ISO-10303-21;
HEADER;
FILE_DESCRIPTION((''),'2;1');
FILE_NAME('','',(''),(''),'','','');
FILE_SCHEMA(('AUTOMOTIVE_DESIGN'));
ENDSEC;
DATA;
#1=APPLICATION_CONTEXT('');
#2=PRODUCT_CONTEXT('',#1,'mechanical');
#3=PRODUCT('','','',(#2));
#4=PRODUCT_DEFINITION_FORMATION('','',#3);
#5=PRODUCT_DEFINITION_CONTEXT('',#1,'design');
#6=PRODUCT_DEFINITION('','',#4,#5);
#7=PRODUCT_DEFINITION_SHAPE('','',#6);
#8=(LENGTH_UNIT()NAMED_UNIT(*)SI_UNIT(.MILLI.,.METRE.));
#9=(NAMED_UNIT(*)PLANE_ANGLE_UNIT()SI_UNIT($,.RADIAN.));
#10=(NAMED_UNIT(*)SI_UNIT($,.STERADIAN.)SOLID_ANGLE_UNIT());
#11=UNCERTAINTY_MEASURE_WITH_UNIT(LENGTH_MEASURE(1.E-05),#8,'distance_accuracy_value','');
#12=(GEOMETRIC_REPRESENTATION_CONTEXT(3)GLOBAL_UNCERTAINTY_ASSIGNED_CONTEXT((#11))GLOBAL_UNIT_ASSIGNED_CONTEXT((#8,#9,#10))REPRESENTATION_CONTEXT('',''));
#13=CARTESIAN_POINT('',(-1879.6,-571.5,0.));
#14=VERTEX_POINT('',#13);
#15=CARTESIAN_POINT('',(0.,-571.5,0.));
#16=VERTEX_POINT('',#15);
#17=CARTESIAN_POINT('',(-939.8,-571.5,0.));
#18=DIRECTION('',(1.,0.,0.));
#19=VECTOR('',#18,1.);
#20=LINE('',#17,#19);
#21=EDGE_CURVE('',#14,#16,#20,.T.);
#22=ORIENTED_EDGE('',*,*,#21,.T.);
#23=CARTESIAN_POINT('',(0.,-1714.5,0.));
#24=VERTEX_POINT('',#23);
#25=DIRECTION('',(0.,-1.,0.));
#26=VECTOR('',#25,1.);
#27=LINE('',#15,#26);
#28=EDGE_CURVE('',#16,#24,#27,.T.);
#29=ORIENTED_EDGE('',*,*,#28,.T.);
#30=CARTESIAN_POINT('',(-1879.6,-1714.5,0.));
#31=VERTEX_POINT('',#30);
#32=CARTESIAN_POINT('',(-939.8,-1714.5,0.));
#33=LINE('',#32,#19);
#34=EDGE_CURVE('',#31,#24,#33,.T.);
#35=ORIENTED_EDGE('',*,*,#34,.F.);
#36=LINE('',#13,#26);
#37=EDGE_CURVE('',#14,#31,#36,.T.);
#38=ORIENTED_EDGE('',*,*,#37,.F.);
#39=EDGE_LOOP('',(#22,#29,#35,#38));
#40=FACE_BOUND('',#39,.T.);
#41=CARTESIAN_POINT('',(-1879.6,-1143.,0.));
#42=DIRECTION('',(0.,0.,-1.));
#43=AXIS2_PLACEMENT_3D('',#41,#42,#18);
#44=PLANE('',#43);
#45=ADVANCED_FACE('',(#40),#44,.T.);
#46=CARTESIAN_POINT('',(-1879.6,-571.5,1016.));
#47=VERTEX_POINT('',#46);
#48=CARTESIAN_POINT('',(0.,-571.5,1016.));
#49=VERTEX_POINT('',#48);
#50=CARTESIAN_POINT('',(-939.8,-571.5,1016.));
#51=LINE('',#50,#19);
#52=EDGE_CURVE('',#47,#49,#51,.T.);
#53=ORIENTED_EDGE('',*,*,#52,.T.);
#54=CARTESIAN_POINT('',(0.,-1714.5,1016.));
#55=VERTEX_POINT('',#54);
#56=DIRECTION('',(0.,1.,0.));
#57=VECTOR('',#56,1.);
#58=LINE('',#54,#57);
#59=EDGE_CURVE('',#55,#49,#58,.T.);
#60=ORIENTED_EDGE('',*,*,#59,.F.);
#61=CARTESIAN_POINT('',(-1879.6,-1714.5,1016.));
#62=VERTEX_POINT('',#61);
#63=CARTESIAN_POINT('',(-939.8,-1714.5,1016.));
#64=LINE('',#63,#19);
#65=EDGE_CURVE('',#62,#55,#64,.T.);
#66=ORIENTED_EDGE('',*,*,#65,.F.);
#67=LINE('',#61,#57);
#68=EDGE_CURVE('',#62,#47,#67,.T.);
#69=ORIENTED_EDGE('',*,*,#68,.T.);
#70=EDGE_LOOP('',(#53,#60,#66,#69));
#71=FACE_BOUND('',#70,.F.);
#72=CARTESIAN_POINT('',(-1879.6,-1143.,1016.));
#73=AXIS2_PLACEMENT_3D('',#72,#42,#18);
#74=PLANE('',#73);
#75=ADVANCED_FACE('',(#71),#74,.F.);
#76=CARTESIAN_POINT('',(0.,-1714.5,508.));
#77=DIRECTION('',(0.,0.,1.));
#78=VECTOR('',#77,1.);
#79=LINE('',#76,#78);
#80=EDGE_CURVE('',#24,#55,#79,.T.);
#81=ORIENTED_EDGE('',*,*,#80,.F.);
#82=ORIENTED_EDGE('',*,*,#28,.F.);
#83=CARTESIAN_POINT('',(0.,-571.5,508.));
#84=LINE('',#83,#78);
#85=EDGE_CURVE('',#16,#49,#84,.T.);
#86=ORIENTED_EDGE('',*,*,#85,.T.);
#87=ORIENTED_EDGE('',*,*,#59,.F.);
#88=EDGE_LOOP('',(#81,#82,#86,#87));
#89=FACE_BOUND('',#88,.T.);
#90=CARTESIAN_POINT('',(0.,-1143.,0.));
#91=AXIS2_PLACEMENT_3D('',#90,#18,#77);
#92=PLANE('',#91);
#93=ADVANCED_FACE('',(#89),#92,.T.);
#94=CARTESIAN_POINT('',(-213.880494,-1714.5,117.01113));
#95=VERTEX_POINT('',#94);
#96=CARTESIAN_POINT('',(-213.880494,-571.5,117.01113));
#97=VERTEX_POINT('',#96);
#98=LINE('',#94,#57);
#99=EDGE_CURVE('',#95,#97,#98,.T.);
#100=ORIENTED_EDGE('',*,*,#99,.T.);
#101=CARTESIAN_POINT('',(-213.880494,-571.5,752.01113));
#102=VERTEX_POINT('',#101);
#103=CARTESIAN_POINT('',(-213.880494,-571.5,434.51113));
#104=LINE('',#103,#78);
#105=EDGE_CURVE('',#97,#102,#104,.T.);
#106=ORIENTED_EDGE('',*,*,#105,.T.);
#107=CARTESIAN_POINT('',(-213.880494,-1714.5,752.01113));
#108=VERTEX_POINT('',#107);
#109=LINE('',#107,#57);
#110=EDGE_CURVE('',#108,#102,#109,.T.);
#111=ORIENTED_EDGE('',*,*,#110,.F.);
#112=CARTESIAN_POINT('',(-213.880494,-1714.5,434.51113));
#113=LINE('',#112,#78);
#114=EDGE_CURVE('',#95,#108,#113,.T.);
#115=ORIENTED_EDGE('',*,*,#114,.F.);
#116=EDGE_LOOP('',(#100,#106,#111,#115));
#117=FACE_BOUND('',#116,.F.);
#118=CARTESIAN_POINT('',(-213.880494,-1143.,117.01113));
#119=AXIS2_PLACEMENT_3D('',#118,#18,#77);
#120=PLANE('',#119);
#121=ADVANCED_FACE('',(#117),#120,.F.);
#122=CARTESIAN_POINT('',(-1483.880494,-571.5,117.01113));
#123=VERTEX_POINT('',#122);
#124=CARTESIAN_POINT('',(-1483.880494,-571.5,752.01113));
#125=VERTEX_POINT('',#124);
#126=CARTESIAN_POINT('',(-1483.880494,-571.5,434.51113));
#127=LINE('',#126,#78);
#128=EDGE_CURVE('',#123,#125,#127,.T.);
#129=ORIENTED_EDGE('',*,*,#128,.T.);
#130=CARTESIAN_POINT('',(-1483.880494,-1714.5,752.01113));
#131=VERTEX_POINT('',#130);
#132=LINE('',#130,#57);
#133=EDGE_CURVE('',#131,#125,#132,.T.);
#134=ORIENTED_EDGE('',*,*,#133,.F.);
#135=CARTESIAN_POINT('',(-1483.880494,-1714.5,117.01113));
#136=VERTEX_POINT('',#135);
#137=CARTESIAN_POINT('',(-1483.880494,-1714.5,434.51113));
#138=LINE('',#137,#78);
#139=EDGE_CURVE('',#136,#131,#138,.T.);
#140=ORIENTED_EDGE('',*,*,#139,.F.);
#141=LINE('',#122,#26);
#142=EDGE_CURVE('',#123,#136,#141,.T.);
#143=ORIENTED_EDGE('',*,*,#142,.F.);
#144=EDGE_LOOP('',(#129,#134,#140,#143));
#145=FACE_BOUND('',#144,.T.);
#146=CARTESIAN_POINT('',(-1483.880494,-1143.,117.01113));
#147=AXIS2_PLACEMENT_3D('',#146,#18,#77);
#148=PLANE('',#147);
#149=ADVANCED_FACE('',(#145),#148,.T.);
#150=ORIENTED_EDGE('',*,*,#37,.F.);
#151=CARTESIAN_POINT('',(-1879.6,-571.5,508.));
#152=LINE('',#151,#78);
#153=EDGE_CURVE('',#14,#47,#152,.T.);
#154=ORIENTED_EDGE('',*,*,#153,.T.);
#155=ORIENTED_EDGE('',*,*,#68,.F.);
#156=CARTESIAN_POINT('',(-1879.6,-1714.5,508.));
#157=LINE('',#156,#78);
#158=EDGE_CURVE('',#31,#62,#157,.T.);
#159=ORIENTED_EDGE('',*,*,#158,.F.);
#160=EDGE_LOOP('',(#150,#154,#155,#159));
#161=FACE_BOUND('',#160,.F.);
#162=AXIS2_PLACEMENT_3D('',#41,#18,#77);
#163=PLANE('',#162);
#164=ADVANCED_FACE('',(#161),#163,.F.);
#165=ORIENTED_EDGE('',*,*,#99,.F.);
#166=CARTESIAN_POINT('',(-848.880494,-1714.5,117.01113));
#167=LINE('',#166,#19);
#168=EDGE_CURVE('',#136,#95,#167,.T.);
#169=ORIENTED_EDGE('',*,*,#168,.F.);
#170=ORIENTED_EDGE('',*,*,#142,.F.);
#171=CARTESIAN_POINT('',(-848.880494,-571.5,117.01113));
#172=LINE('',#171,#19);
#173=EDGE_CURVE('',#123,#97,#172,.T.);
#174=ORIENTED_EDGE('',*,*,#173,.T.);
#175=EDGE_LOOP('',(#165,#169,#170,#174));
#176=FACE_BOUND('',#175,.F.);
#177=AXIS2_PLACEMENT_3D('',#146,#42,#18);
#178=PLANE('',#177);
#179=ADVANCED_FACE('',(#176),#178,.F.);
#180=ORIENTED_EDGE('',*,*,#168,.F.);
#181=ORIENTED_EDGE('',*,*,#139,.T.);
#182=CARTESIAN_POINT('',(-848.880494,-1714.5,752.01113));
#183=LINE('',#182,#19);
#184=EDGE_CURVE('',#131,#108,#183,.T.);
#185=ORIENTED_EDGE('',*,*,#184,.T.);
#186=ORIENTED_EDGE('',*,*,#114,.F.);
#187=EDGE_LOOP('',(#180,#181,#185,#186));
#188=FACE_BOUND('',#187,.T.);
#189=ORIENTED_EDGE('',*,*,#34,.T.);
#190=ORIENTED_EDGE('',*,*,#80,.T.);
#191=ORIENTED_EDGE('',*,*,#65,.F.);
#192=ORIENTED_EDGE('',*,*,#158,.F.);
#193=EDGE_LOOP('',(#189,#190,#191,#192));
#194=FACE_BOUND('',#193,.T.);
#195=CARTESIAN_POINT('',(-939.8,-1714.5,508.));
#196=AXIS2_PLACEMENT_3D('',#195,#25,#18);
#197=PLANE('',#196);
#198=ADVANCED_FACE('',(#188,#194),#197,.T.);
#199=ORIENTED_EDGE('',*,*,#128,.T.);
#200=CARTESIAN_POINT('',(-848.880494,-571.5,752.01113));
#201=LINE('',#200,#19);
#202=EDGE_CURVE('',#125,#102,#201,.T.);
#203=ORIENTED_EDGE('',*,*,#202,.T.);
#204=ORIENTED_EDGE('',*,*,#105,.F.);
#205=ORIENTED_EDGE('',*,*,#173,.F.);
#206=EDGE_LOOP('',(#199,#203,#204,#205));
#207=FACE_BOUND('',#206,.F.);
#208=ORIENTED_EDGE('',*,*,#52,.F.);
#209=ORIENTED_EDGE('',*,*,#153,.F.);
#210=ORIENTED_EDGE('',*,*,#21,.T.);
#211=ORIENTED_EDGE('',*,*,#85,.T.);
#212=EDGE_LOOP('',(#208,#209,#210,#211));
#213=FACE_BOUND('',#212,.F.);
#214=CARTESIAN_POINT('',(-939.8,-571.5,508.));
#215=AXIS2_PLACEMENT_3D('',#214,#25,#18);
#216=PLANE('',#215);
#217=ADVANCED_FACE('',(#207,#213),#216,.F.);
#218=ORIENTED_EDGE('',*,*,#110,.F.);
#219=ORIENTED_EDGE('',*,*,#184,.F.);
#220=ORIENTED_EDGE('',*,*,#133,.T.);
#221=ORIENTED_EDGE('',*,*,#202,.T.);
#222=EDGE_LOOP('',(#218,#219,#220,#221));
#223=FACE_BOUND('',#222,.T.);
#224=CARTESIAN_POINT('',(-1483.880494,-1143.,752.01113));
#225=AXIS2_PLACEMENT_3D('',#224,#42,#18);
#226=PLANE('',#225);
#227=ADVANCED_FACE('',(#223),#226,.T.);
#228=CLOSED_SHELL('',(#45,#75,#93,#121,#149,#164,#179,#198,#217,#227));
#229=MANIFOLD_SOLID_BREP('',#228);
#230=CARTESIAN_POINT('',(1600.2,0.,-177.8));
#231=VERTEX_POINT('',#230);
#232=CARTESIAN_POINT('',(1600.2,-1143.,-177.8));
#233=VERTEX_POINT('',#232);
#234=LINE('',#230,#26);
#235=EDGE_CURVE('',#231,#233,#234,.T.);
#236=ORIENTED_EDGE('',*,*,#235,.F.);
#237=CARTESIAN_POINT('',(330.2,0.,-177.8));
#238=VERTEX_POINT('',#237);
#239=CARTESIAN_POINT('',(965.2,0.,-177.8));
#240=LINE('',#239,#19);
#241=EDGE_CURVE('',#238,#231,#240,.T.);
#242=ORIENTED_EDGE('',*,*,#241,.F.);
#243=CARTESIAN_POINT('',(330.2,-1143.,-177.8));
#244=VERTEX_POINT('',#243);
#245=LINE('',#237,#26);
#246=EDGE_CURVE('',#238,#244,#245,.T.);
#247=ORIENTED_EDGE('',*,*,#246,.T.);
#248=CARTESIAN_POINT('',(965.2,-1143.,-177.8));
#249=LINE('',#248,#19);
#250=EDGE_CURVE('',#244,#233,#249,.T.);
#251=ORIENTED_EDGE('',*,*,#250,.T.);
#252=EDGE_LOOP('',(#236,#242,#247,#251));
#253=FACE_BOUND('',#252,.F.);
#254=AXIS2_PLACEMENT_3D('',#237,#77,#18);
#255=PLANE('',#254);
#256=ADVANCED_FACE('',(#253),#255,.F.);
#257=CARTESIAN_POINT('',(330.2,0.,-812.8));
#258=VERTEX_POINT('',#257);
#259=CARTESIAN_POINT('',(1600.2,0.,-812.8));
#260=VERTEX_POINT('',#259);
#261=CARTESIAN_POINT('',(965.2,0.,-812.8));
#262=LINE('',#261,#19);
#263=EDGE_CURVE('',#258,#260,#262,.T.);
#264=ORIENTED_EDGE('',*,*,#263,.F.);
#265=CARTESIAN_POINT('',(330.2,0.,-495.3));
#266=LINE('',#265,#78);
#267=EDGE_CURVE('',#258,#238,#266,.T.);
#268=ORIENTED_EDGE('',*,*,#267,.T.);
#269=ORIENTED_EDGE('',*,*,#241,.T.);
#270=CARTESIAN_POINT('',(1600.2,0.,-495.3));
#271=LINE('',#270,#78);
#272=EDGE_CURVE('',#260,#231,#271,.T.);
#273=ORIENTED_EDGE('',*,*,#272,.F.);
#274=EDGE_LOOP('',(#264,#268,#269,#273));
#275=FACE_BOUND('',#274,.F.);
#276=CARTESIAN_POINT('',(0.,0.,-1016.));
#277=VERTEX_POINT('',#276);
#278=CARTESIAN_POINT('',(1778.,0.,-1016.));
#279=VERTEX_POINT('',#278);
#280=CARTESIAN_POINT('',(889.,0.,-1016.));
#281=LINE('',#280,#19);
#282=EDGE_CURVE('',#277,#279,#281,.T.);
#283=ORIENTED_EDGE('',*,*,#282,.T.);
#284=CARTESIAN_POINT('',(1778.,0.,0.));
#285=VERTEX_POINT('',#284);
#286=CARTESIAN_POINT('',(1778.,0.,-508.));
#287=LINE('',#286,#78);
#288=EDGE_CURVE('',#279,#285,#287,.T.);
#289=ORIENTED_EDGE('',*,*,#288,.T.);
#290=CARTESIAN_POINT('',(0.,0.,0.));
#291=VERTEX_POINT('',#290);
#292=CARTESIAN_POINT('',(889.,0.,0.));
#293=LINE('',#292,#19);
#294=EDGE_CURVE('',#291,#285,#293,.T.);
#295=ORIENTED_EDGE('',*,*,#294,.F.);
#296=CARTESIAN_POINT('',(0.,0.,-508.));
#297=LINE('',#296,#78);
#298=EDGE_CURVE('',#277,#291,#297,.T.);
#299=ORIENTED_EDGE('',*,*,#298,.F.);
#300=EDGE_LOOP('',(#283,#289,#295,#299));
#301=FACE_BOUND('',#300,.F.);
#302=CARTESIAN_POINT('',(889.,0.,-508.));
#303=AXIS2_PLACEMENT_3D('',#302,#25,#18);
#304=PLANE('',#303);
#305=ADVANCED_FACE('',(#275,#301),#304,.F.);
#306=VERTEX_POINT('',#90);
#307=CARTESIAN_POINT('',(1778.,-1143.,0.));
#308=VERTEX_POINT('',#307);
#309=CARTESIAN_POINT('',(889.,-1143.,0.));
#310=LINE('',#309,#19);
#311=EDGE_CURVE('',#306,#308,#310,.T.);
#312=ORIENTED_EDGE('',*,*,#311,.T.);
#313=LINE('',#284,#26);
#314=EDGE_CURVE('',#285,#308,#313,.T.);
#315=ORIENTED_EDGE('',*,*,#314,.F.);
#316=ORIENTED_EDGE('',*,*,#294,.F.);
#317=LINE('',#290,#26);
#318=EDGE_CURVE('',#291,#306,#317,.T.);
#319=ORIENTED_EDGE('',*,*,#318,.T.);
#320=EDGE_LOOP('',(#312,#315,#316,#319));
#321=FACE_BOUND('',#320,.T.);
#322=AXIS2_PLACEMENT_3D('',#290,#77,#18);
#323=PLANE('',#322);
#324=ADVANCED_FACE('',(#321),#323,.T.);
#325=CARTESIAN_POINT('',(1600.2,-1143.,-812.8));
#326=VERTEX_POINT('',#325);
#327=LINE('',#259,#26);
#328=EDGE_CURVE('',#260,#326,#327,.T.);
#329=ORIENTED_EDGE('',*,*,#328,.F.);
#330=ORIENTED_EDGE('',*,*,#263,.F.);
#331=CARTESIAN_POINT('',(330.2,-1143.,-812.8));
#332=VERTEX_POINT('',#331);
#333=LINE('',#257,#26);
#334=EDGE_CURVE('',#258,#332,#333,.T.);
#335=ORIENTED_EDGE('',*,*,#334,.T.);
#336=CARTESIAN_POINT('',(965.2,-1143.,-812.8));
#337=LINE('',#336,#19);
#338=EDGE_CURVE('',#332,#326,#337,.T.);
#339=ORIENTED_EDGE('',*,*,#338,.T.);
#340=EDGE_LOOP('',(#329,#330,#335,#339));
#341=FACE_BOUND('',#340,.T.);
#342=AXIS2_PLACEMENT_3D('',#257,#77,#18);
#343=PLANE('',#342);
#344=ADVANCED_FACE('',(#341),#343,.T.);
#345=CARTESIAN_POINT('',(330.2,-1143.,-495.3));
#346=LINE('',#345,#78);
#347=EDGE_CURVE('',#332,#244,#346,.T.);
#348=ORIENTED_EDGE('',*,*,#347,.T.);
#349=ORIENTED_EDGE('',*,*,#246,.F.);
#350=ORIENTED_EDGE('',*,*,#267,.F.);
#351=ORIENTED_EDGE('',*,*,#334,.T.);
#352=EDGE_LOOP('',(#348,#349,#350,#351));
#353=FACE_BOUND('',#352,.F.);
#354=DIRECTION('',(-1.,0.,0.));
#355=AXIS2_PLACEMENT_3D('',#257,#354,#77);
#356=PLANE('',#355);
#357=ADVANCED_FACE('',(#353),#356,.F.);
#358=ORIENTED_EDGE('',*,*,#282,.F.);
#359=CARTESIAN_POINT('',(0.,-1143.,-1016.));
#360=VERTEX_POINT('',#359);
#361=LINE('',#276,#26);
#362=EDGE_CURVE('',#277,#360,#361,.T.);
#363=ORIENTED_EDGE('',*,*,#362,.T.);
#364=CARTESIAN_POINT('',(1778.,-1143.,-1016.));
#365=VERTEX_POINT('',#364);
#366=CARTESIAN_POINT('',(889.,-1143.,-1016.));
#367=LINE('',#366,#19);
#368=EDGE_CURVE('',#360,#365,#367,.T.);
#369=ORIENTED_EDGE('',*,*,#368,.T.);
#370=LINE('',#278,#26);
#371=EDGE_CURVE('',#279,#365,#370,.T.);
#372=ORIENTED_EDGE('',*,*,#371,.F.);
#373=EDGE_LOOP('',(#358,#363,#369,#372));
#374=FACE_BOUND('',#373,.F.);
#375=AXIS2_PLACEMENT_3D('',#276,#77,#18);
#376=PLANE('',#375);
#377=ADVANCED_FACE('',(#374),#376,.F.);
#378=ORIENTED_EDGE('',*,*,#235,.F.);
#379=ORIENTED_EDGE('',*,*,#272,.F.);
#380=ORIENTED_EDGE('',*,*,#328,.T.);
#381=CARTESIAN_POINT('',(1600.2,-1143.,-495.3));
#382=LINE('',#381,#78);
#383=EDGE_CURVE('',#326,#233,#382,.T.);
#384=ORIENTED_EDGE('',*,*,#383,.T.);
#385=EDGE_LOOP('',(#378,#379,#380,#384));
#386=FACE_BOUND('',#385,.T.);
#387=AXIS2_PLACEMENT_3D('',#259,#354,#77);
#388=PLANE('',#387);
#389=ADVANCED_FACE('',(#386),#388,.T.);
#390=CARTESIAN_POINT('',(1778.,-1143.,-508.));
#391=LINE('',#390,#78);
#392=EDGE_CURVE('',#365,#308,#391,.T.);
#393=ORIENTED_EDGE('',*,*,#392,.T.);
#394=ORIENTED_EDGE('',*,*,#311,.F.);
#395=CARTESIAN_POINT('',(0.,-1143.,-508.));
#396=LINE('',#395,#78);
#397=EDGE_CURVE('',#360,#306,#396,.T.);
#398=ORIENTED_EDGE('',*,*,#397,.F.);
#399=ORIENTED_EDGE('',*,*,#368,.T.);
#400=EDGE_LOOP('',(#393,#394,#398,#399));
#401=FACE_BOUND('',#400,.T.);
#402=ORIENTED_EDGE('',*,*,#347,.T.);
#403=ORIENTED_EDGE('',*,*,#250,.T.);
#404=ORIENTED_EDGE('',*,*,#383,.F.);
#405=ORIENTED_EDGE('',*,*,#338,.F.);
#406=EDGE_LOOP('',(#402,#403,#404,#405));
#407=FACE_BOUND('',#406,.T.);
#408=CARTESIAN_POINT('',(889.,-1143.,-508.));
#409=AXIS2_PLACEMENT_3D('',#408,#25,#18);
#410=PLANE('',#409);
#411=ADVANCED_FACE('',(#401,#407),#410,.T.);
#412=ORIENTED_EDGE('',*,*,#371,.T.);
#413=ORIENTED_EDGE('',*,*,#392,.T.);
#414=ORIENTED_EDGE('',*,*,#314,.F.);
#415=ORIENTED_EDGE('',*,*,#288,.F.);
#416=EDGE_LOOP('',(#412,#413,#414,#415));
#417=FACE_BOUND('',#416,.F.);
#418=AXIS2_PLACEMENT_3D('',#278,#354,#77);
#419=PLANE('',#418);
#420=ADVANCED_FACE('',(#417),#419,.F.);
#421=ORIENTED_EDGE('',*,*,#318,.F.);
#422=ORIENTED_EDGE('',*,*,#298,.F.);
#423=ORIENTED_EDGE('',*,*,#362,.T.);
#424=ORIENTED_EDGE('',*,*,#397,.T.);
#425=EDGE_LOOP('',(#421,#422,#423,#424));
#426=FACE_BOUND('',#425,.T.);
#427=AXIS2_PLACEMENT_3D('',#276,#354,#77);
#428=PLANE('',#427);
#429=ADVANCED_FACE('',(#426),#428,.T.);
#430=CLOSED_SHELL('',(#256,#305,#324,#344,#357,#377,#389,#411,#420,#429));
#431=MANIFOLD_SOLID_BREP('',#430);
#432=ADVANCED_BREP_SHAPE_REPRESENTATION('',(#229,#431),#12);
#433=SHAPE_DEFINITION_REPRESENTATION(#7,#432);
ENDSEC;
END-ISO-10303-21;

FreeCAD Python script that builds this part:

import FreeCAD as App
import Part
import Sketcher
from FreeCAD import Vector
Q = App.Units.Quantity


def add_polygon(sketch, points):
    """Adds a closed chain of lines whose ends are joined by coincident constraints."""
    first, n = sketch.GeometryCount, len(points)
    for a, b in zip(points, points[1:] + points[:1]):
        sketch.addGeometry(Part.LineSegment(App.Vector(*a, 0), App.Vector(*b, 0)), False)
    for i in range(n):
        sketch.addConstraint(Sketcher.Constraint("Coincident", first + i, 2, first + (i + 1) % n, 1))

doc = App.newDocument("Part")
body = doc.addObject("PartDesign::Body", "Body")

sketch1 = body.newObject("Sketcher::SketchObject", "Sketch")
sketch1.AttachmentSupport = (doc.getObject("XZ_Plane"), [""])
sketch1.MapMode = "FlatFace"
add_polygon(sketch1, [(0, 0), (0, -1016), (1778, -1016), (1778, 0)])
add_polygon(sketch1, [(1600.2, -812.8), (330.2, -812.8), (330.2, -177.8), (1600.2, -177.8)])
sketch1.addConstraint(Sketcher.Constraint("Vertical", 0))
sketch1.addConstraint(Sketcher.Constraint("Horizontal", 1))
sketch1.addConstraint(Sketcher.Constraint("Vertical", 2))
sketch1.addConstraint(Sketcher.Constraint("Horizontal", 3))
sketch1.addConstraint(Sketcher.Constraint("Horizontal", 4))
sketch1.addConstraint(Sketcher.Constraint("Vertical", 5))
sketch1.addConstraint(Sketcher.Constraint("Horizontal", 6))
sketch1.addConstraint(Sketcher.Constraint("Vertical", 7))
sketch1.addConstraint(Sketcher.Constraint("Coincident", 3, 2, -1, 1))
sketch1.addConstraint(Sketcher.Constraint("DistanceX", 1, 1, 1, 2, Q("70 in")))
sketch1.addConstraint(Sketcher.Constraint("DistanceX", 4, 2, 4, 1, Q("50 in")))
sketch1.addConstraint(Sketcher.Constraint("DistanceY", 0, 2, 0, 1, Q("40 in")))
sketch1.addConstraint(Sketcher.Constraint("DistanceY", 5, 1, 5, 2, Q("25 in")))
sketch1.addConstraint(Sketcher.Constraint("DistanceX", -1, 1, 4, 2, Q("13 in")))
sketch1.addConstraint(Sketcher.Constraint("DistanceY", 4, 2, -1, 1, Q("32 in")))
pad1 = body.newObject("PartDesign::Pad", "Pad")
pad1.Profile = sketch1
pad1.Length = Q("45 in")
body2 = doc.addObject("PartDesign::Body", "Body001")

sketch2 = body2.newObject("Sketcher::SketchObject", "Sketch001")
sketch2.AttachmentSupport = (doc.getObject("XZ_Plane001"), [""])
sketch2.MapMode = "FlatFace"
sketch2.AttachmentOffset = App.Placement(Vector(0, 0, 45 * 25.4), App.Rotation())
add_polygon(sketch2, [(-1879.6, 1016), (-1879.6, 0), (0, 0), (0, 1016)])
add_polygon(sketch2, [(-213.880494, 117.01113), (-1483.880494, 117.01113), (-1483.880494, 752.01113), (-213.880494, 752.01113)])
sketch2.addConstraint(Sketcher.Constraint("Vertical", 0))
sketch2.addConstraint(Sketcher.Constraint("Horizontal", 1))
sketch2.addConstraint(Sketcher.Constraint("Vertical", 2))
sketch2.addConstraint(Sketcher.Constraint("Horizontal", 3))
sketch2.addConstraint(Sketcher.Constraint("Horizontal", 4))
sketch2.addConstraint(Sketcher.Constraint("Vertical", 5))
sketch2.addConstraint(Sketcher.Constraint("Horizontal", 6))
sketch2.addConstraint(Sketcher.Constraint("Vertical", 7))
sketch2.addConstraint(Sketcher.Constraint("Coincident", 1, 2, -1, 1))
sketch2.addConstraint(Sketcher.Constraint("DistanceX", 1, 1, 1, 2, Q("74 in")))
sketch2.addConstraint(Sketcher.Constraint("DistanceX", 4, 2, 4, 1, Q("50 in")))
sketch2.addConstraint(Sketcher.Constraint("DistanceY", 0, 2, 0, 1, Q("40 in")))
sketch2.addConstraint(Sketcher.Constraint("DistanceY", 5, 1, 5, 2, Q("25 in")))
sketch2.addConstraint(Sketcher.Constraint("DistanceY", -1, 1, 4, 2, Q("117.01113 mm")))
sketch2.addConstraint(Sketcher.Constraint("DistanceX", 4, 2, -1, 1, Q("1483.880494 mm")))
pad2 = body2.newObject("PartDesign::Pad", "Pad001")
pad2.Profile = sketch2
pad2.Length = Q("45 in")
pad2.Midplane = True

doc.recompute()
